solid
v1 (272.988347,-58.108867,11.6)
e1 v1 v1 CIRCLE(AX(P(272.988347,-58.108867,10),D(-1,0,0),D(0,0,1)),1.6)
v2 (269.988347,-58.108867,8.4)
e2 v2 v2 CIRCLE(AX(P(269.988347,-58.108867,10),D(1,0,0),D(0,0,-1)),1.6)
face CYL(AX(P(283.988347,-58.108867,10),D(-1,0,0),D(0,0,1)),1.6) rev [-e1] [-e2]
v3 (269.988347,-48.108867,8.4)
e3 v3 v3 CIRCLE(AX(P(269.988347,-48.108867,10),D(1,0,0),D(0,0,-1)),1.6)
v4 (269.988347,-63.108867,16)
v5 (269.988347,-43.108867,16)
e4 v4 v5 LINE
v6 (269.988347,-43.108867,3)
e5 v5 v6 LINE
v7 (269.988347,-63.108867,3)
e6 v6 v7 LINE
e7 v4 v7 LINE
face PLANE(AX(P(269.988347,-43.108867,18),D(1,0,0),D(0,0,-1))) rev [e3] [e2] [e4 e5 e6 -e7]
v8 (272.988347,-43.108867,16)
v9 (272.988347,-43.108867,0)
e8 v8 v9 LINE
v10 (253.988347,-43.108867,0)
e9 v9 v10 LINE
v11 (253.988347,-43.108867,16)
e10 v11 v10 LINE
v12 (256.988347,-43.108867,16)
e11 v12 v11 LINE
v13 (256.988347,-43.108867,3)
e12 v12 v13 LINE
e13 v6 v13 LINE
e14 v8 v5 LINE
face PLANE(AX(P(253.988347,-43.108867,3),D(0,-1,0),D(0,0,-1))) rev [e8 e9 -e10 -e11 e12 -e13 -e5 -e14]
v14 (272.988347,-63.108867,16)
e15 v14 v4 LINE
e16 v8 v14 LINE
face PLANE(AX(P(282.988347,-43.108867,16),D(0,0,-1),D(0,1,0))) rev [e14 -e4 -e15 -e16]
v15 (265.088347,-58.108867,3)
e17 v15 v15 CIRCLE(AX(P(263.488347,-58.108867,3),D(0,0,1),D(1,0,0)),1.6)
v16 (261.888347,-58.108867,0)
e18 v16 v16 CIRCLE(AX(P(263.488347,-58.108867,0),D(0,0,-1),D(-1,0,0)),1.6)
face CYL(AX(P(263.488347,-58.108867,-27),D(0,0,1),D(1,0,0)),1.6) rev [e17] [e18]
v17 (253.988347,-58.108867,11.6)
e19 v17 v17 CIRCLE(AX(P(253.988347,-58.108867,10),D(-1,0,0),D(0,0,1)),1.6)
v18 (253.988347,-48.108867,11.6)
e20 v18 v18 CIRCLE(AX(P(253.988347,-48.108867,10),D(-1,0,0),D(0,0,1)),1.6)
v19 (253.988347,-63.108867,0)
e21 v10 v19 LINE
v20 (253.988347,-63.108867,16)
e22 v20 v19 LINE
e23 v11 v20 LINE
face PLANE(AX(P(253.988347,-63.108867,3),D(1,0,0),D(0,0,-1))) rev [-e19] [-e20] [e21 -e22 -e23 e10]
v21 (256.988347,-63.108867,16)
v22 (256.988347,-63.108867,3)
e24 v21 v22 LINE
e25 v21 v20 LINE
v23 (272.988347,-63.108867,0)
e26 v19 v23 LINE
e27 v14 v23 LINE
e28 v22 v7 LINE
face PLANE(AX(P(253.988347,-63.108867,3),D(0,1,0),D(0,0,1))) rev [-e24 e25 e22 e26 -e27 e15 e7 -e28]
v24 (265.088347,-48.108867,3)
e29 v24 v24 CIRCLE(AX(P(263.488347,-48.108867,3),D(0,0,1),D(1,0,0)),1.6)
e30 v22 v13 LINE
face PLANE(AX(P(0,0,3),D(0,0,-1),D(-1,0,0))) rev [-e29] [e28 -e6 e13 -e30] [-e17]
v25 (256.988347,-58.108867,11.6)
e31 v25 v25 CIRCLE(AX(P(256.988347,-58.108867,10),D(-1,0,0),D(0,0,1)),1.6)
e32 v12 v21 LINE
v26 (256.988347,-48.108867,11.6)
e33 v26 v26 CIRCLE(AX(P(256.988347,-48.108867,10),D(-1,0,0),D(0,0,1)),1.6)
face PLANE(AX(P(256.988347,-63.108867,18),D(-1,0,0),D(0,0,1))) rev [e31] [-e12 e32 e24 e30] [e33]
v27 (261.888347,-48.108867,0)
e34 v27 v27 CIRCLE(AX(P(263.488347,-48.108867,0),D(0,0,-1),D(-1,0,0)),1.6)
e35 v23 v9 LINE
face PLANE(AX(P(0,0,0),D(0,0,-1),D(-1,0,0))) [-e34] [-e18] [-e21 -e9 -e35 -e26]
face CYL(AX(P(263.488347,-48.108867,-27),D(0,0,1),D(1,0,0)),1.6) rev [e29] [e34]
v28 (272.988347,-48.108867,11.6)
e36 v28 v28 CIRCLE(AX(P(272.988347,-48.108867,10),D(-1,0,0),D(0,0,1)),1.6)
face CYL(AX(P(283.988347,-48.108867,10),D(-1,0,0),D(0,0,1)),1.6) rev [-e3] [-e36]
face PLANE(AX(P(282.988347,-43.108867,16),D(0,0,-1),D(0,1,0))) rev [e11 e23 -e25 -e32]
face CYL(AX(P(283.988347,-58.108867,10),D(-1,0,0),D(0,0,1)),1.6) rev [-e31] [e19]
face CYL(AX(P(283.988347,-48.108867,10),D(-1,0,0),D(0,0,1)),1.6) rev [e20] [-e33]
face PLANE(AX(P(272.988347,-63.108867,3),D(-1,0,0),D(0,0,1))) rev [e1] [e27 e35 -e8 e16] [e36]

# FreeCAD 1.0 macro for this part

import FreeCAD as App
import Part
import Sketcher

V = App.Vector


def add_polygon(sketch, points):
    """Adds a closed chain of lines whose ends are joined by coincident constraints."""
    first, n = sketch.GeometryCount, len(points)
    for a, b in zip(points, points[1:] + points[:1]):
        sketch.addGeometry(Part.LineSegment(App.Vector(*a, 0), App.Vector(*b, 0)), False)
    for i in range(n):
        sketch.addConstraint(Sketcher.Constraint("Coincident", first + i, 2, first + (i + 1) % n, 1))

doc = App.newDocument("Part")
body = doc.addObject("PartDesign::Body", "Body")

# Sketch on XY plane
sketch1 = body.newObject("Sketcher::SketchObject", "Sketch")
sketch1.AttachmentSupport = (doc.getObject("XY_Plane"), [""])
sketch1.MapMode = "FlatFace"
add_polygon(sketch1, [(254, -43), (254, -63), (273, -63), (273, -43)])  # lines 0-3
sketch1.addConstraint([
    Sketcher.Constraint("Vertical", 0),
    Sketcher.Constraint("Horizontal", 1),
    Sketcher.Constraint("Vertical", 2),
    Sketcher.Constraint("Horizontal", 3),
    Sketcher.Constraint("DistanceX", 1, 1, 1, 2, 19.0),
    Sketcher.Constraint("DistanceY", 0, 2, 0, 1, 20.0),
    Sketcher.Constraint("DistanceX", -1, 1, 0, 2, 253.988347),
    Sketcher.Constraint("DistanceY", 0, 2, -1, 1, 63.108867),
])
pad1 = body.newObject("PartDesign::Pad", "Pad")
pad1.Profile = sketch1
pad1.Length = 3

# Sketch on XY plane
sketch2 = body.newObject("Sketcher::SketchObject", "Sketch001")
sketch2.AttachmentSupport = (doc.getObject("XY_Plane"), [""])
sketch2.MapMode = "FlatFace"
sketch2.AttachmentOffset = App.Placement(V(0, 0, 3), App.Rotation())
add_polygon(sketch2, [(254, -43.1), (254, -63.1), (257, -63.1), (257, -43.1)])  # lines 0-3
add_polygon(sketch2, [(270, -43.1), (270, -63.1), (273, -63.1), (273, -43.1)])  # lines 4-7
sketch2.addConstraint([
    Sketcher.Constraint("Vertical", 0),
    Sketcher.Constraint("Horizontal", 1),
    Sketcher.Constraint("Vertical", 2),
    Sketcher.Constraint("Horizontal", 3),
    Sketcher.Constraint("Vertical", 4),
    Sketcher.Constraint("Horizontal", 5),
    Sketcher.Constraint("Vertical", 6),
    Sketcher.Constraint("Horizontal", 7),
    Sketcher.Constraint("Horizontal", 1, 2, 4, 2),
    Sketcher.Constraint("Horizontal", 3, 2, 6, 2),
    Sketcher.Constraint("Equal", 3, 5),
    Sketcher.Constraint("DistanceX", 1, 1, 1, 2, 3.0),
    Sketcher.Constraint("DistanceY", 0, 2, 0, 1, 20.0),
    Sketcher.Constraint("DistanceX", 1, 2, 4, 2, 13.0),
    Sketcher.Constraint("DistanceX", -1, 1, 0, 2, 253.988347),
    Sketcher.Constraint("DistanceY", 0, 2, -1, 1, 63.108867),
])
pad2 = body.newObject("PartDesign::Pad", "Pad001")
pad2.Profile = sketch2
pad2.Length = 15

# Sketch on YZ plane
sketch3 = body.newObject("Sketcher::SketchObject", "Sketch002")
sketch3.AttachmentSupport = (doc.getObject("YZ_Plane"), [""])
sketch3.MapMode = "FlatFace"
sketch3.AttachmentOffset = App.Placement(V(0, 0, 253.988347), App.Rotation())
sketch3.addGeometry([
    Part.Circle(V(-48.1, 10, 0), V(0, 0, 1), 1.6),
    Part.Circle(V(-58.1, 10, 0), V(0, 0, 1), 1.6),
], False)
sketch3.addConstraint([
    Sketcher.Constraint("Equal", 0, 1),
    Sketcher.Constraint("Horizontal", 0, 3, 1, 3),
    Sketcher.Constraint("Diameter", 0, 3.2),
    Sketcher.Constraint("DistanceY", -1, 1, 0, 3, 10.0),
    Sketcher.Constraint("DistanceX", 1, 3, 0, 3, 10.0),
    Sketcher.Constraint("DistanceX", 0, 3, -1, 1, 48.108867),
])
pocket1 = body.newObject("PartDesign::Pocket", "Pocket")
pocket1.Profile = sketch3
pocket1.Length = 30
pocket1.Reversed = True

# Sketch on XY plane
sketch4 = body.newObject("Sketcher::SketchObject", "Sketch003")
sketch4.AttachmentSupport = (doc.getObject("XY_Plane"), [""])
sketch4.MapMode = "FlatFace"
sketch4.AttachmentOffset = App.Placement(V(0, 0, 3), App.Rotation())
sketch4.addGeometry([
    Part.Circle(V(263.5, -48.1, 0), V(0, 0, 1), 1.6),
    Part.Circle(V(263.5, -58.1, 0), V(0, 0, 1), 1.6),
], False)
sketch4.addConstraint([
    Sketcher.Constraint("Equal", 0, 1),
    Sketcher.Constraint("Vertical", 0, 3, 1, 3),
    Sketcher.Constraint("Diameter", 0, 3.2),
    Sketcher.Constraint("DistanceY", 1, 3, 0, 3, 10.0),
    Sketcher.Constraint("DistanceX", -1, 1, 0, 3, 263.488347),
    Sketcher.Constraint("DistanceY", 0, 3, -1, 1, 48.108867),
])
pocket2 = body.newObject("PartDesign::Pocket", "Pocket001")
pocket2.Profile = sketch4
pocket2.Length = 30

# Sketch on YZ plane
sketch5 = body.newObject("Sketcher::SketchObject", "Sketch004")
sketch5.AttachmentSupport = (doc.getObject("YZ_Plane"), [""])
sketch5.MapMode = "FlatFace"
sketch5.AttachmentOffset = App.Placement(V(0, 0, 253.988347), App.Rotation())
add_polygon(sketch5, [(-43, 16), (-69, 16), (-69, 26), (-43, 26)])  # lines 0-3
sketch5.addConstraint([
    Sketcher.Constraint("Horizontal", 0),
    Sketcher.Constraint("Vertical", 1),
    Sketcher.Constraint("Horizontal", 2),
    Sketcher.Constraint("Vertical", 3),
    Sketcher.Constraint("DistanceY", -1, 1, 0, 2, 16.0),
    Sketcher.Constraint("DistanceX", 0, 2, 0, 1, 25.467579),
    Sketcher.Constraint("DistanceY", 1, 1, 1, 2, 9.97362),
    Sketcher.Constraint("DistanceX", 0, 2, -1, 1, 68.576445),
])
pocket3 = body.newObject("PartDesign::Pocket", "Pocket002")
pocket3.Profile = sketch5
pocket3.Length = 29
pocket3.Reversed = True

doc.recompute()
